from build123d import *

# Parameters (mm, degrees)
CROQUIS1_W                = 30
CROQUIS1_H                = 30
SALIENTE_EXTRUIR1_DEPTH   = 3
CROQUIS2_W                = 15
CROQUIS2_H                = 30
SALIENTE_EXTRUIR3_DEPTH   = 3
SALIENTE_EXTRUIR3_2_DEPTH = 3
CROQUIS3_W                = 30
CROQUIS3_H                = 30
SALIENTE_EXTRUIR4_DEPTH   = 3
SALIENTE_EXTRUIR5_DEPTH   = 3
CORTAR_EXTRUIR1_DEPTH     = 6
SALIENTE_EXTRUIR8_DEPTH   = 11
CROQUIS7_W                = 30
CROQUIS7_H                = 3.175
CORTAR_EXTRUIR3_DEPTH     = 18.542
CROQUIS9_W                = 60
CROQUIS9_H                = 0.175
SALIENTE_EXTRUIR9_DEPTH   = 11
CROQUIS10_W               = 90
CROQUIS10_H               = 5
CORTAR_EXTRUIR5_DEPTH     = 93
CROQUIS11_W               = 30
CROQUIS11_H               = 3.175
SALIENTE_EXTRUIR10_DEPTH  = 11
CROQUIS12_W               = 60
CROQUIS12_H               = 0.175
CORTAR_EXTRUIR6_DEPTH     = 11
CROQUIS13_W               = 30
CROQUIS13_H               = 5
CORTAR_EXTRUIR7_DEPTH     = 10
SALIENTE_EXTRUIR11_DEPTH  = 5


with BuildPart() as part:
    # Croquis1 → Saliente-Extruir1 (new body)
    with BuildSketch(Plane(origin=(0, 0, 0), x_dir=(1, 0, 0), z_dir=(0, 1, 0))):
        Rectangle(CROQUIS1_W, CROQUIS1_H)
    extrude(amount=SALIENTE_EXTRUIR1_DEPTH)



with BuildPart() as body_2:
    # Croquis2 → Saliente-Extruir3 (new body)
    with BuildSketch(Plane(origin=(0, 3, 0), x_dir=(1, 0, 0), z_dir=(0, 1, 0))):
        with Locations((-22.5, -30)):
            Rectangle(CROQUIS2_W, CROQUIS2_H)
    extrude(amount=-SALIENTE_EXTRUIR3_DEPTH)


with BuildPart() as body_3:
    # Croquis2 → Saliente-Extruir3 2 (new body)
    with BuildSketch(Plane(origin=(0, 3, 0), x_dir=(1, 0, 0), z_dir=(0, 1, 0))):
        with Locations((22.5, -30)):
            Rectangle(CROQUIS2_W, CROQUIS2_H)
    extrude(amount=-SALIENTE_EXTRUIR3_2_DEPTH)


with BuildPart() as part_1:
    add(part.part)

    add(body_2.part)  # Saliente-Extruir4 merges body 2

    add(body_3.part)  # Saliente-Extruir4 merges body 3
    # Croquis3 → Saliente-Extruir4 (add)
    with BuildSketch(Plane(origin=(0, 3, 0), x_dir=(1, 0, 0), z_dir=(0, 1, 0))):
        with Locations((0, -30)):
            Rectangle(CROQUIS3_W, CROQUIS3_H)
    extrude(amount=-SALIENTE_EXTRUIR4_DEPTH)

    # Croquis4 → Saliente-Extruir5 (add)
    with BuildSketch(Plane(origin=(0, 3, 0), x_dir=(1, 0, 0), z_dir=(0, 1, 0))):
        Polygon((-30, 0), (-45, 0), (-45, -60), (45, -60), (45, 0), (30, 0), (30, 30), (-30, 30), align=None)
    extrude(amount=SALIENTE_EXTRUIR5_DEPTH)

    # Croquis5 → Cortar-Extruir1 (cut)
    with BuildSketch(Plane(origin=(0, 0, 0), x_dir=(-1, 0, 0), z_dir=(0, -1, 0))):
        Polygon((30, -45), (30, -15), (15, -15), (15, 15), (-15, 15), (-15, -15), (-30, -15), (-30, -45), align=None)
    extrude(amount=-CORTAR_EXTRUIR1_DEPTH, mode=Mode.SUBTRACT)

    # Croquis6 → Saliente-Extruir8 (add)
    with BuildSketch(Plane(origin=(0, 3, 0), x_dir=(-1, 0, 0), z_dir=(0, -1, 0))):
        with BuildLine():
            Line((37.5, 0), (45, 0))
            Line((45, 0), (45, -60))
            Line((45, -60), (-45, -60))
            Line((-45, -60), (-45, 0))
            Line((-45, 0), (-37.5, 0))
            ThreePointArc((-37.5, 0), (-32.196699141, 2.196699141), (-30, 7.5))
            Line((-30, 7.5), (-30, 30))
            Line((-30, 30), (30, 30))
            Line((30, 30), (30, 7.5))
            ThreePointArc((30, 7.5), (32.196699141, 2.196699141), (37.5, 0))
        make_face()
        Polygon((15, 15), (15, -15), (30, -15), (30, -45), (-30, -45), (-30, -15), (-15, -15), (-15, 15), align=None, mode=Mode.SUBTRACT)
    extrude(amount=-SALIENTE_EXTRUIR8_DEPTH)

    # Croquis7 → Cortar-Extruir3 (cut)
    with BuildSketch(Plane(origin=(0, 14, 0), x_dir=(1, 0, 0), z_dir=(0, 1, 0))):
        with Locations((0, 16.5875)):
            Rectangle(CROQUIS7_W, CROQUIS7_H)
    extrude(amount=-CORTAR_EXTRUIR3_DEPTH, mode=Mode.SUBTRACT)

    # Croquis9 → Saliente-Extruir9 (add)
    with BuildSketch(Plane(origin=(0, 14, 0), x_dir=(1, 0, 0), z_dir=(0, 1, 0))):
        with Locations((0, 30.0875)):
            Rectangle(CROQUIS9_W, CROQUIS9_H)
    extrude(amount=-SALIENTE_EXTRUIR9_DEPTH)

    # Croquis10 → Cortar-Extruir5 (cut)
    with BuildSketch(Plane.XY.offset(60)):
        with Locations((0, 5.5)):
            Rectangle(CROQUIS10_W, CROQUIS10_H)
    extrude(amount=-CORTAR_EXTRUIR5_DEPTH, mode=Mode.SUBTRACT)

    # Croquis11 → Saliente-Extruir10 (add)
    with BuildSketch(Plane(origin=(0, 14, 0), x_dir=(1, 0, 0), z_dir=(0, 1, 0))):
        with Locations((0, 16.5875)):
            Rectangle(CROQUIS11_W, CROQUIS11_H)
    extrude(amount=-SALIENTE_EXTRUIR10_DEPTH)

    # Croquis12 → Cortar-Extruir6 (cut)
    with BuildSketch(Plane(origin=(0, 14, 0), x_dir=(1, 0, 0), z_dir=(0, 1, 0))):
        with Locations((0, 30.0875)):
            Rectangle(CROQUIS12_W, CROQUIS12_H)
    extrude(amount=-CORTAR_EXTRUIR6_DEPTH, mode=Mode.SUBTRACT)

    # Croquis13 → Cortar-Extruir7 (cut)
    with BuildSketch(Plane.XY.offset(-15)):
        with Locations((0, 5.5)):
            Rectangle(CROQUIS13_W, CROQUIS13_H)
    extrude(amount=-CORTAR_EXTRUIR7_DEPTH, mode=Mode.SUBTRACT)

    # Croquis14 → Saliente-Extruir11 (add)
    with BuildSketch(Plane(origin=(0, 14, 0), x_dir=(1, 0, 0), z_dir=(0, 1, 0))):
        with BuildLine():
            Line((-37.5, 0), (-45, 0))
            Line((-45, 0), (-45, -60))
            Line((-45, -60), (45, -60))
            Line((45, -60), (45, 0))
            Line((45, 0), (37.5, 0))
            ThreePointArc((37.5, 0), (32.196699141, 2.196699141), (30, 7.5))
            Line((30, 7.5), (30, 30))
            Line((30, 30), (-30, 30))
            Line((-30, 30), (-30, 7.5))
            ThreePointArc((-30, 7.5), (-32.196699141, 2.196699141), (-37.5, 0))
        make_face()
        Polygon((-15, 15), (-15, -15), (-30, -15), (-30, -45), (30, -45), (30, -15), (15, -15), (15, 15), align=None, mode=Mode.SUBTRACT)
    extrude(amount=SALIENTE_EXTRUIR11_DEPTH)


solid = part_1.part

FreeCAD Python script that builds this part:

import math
import FreeCAD as App
import Part
import Sketcher
from FreeCAD import Vector
Q = App.Units.Quantity


def add_polygon(sketch, points):
    """Adds a closed chain of lines whose ends are joined by coincident constraints."""
    first, n = sketch.GeometryCount, len(points)
    for a, b in zip(points, points[1:] + points[:1]):
        sketch.addGeometry(Part.LineSegment(App.Vector(*a, 0), App.Vector(*b, 0)), False)
    for i in range(n):
        sketch.addConstraint(Sketcher.Constraint("Coincident", first + i, 2, first + (i + 1) % n, 1))

doc = App.newDocument("Part")
params = doc.addObject("Spreadsheet::Sheet", "Params")
for row, (alias, value) in enumerate([
    ("sketch1_width", "30 mm"),
    ("pad1_length", "3 mm"),
    ("sketch2_width", "15 mm"),
    ("sketch2_height", "30 mm"),
    ("pad2_length", "3 mm"),
    ("sketch3_width", "15 mm"),
    ("sketch3_height", "30 mm"),
    ("pad3_length", "3 mm"),
    ("sketch4_width", "30 mm"),
    ("pad4_length", "3 mm"),
    ("sketch5_width", "15 mm"),
    ("sketch5_width2", "90 mm"),
    ("sketch5_height", "30 mm"),
    ("pad5_length", "3 mm"),
    ("sketch6_width", "15 mm"),
    ("sketch6_width2", "30 mm"),
    ("pocket1_length", "6 mm"),
    ("sketch7_radius", "7.5 mm"),
    ("sketch7_width", "60 mm"),
    ("sketch7_width2", "90 mm"),
    ("sketch7_width3", "15 mm"),
    ("sketch7_height", "22.5 mm"),
    ("pad6_length", "11 mm"),
    ("sketch8_width", "30 mm"),
    ("pocket2_length", "18.542 mm"),
    ("sketch9_width", "60 mm"),
    ("pad7_length", "11 mm"),
    ("sketch10_width", "90 mm"),
    ("sketch10_height", "5 mm"),
    ("pocket3_length", "93 mm"),
    ("sketch11_width", "30 mm"),
    ("pad8_length", "11 mm"),
    ("sketch12_width", "60 mm"),
    ("pocket4_length", "11 mm"),
    ("sketch13_width", "30 mm"),
    ("sketch13_height", "5 mm"),
    ("pocket5_length", "10 mm"),
    ("sketch14_radius", "7.5 mm"),
    ("sketch14_width", "90 mm"),
    ("sketch14_width2", "60 mm"),
    ("sketch14_width3", "30 mm"),
    ("sketch14_height", "22.5 mm"),
    ("pad9_length", "5 mm"),
], start=1):
    params.set(f"A{row}", alias)
    params.set(f"B{row}", "=" + value)
    params.setAlias(f"B{row}", alias)

body = doc.addObject("PartDesign::Body", "Body")

sketch1 = doc.addObject("Sketcher::SketchObject", "Sketch")
body.addObject(sketch1)
sketch1.AttachmentSupport = (doc.XZ_Plane, [""])
sketch1.MapMode = "FlatFace"
add_polygon(sketch1, [(-15, -15), (-15, 15), (15, 15), (15, -15)])
sketch1.addConstraint(Sketcher.Constraint("Vertical", 0))
sketch1.addConstraint(Sketcher.Constraint("Horizontal", 1))
sketch1.addConstraint(Sketcher.Constraint("Vertical", 2))
sketch1.addConstraint(Sketcher.Constraint("Horizontal", 3))
sketch1.addConstraint(Sketcher.Constraint("Symmetric", 0, 2, 2, 2, -1, 1))
sketch1.addConstraint(Sketcher.Constraint("Equal", 3, 0))
sketch1.addConstraint(Sketcher.Constraint("DistanceX", 1, 1, 1, 2, Q("30 mm")))
sketch1.setExpression("Constraints[10]", "Params.sketch1_width")
pad1 = doc.addObject("PartDesign::Pad", "Pad")
body.addObject(pad1)
pad1.Profile = sketch1
pad1.setExpression("Length", "Params.pad1_length")
pad1.Reversed = True
body2 = doc.addObject("PartDesign::Body", "Body001")

sketch2 = doc.addObject("Sketcher::SketchObject", "Sketch001")
body2.addObject(sketch2)
sketch2.AttachmentSupport = (doc.getObject("XZ_Plane001"), [""])
sketch2.MapMode = "FlatFace"
sketch2.AttachmentOffset = App.Placement(Vector(0, 0, -3), App.Rotation())
add_polygon(sketch2, [(-30, 15), (-30, 45), (-15, 45), (-15, 15)])
sketch2.addConstraint(Sketcher.Constraint("Vertical", 0))
sketch2.addConstraint(Sketcher.Constraint("Horizontal", 1))
sketch2.addConstraint(Sketcher.Constraint("Vertical", 2))
sketch2.addConstraint(Sketcher.Constraint("Horizontal", 3))
sketch2.addConstraint(Sketcher.Constraint("DistanceX", 1, 1, 1, 2, Q("15 mm")))
sketch2.addConstraint(Sketcher.Constraint("DistanceY", 0, 1, 0, 2, Q("30 mm")))
sketch2.addConstraint(Sketcher.Constraint("DistanceX", 0, 2, -1, 1, Q("30 mm")))
sketch2.addConstraint(Sketcher.Constraint("DistanceY", -1, 1, 0, 2, Q("45 mm")))
sketch2.setExpression("Constraints[8]", "Params.sketch2_width")
sketch2.setExpression("Constraints[9]", "Params.sketch2_height")
pad2 = doc.addObject("PartDesign::Pad", "Pad001")
body2.addObject(pad2)
pad2.Profile = sketch2
pad2.setExpression("Length", "Params.pad2_length")
body3 = doc.addObject("PartDesign::Body", "Body002")

sketch3 = doc.addObject("Sketcher::SketchObject", "Sketch002")
body3.addObject(sketch3)
sketch3.AttachmentSupport = (doc.getObject("XZ_Plane002"), [""])
sketch3.MapMode = "FlatFace"
sketch3.AttachmentOffset = App.Placement(Vector(0, 0, -3), App.Rotation())
add_polygon(sketch3, [(15, 15), (15, 45), (30, 45), (30, 15)])
sketch3.addConstraint(Sketcher.Constraint("Vertical", 0))
sketch3.addConstraint(Sketcher.Constraint("Horizontal", 1))
sketch3.addConstraint(Sketcher.Constraint("Vertical", 2))
sketch3.addConstraint(Sketcher.Constraint("Horizontal", 3))
sketch3.addConstraint(Sketcher.Constraint("DistanceX", 1, 1, 1, 2, Q("15 mm")))
sketch3.addConstraint(Sketcher.Constraint("DistanceY", 0, 1, 0, 2, Q("30 mm")))
sketch3.addConstraint(Sketcher.Constraint("DistanceX", -1, 1, 0, 2, Q("15 mm")))
sketch3.addConstraint(Sketcher.Constraint("DistanceY", -1, 1, 0, 2, Q("45 mm")))
sketch3.setExpression("Constraints[8]", "Params.sketch3_width")
sketch3.setExpression("Constraints[9]", "Params.sketch3_height")
pad3 = doc.addObject("PartDesign::Pad", "Pad002")
body3.addObject(pad3)
pad3.Profile = sketch3
pad3.setExpression("Length", "Params.pad3_length")
body.AllowCompound = True
doc.recompute()

boolean = doc.addObject("PartDesign::Boolean", "Boolean")
body.addObject(boolean)
boolean.Type = "Fuse"
boolean.addObjects([body2])
doc.recompute()

boolean2 = doc.addObject("PartDesign::Boolean", "Boolean001")
body.addObject(boolean2)
boolean2.Type = "Fuse"
boolean2.addObjects([body3])

sketch4 = doc.addObject("Sketcher::SketchObject", "Sketch003")
body.addObject(sketch4)
sketch4.AttachmentSupport = (doc.XZ_Plane, [""])
sketch4.MapMode = "FlatFace"
sketch4.AttachmentOffset = App.Placement(Vector(0, 0, -3), App.Rotation())
add_polygon(sketch4, [(-15, 15), (-15, 45), (15, 45), (15, 15)])
sketch4.addConstraint(Sketcher.Constraint("Vertical", 0))
sketch4.addConstraint(Sketcher.Constraint("Horizontal", 1))
sketch4.addConstraint(Sketcher.Constraint("Vertical", 2))
sketch4.addConstraint(Sketcher.Constraint("Horizontal", 3))
sketch4.addConstraint(Sketcher.Constraint("Equal", 3, 0))
sketch4.addConstraint(Sketcher.Constraint("DistanceX", 1, 1, 1, 2, Q("30 mm")))
sketch4.addConstraint(Sketcher.Constraint("DistanceX", 0, 2, -1, 1, Q("15 mm")))
sketch4.addConstraint(Sketcher.Constraint("DistanceY", -1, 1, 0, 2, Q("45 mm")))
sketch4.setExpression("Constraints[9]", "Params.sketch4_width")
pad4 = doc.addObject("PartDesign::Pad", "Pad003")
body.addObject(pad4)
pad4.Profile = sketch4
pad4.setExpression("Length", "Params.pad4_length")

sketch5 = doc.addObject("Sketcher::SketchObject", "Sketch004")
body.addObject(sketch5)
sketch5.AttachmentSupport = (doc.XZ_Plane, [""])
sketch5.MapMode = "FlatFace"
sketch5.AttachmentOffset = App.Placement(Vector(0, 0, -3), App.Rotation())
add_polygon(sketch5, [(-30, 0), (-45, 0), (-45, 60), (45, 60), (45, 0), (30, 0), (30, -30), (-30, -30)])
sketch5.addConstraint(Sketcher.Constraint("Horizontal", 0))
sketch5.addConstraint(Sketcher.Constraint("Vertical", 1))
sketch5.addConstraint(Sketcher.Constraint("Horizontal", 2))
sketch5.addConstraint(Sketcher.Constraint("Vertical", 3))
sketch5.addConstraint(Sketcher.Constraint("Horizontal", 4))
sketch5.addConstraint(Sketcher.Constraint("Vertical", 5))
sketch5.addConstraint(Sketcher.Constraint("Horizontal", 6))
sketch5.addConstraint(Sketcher.Constraint("Vertical", 7))
sketch5.addConstraint(Sketcher.Constraint("Symmetric", 0, 2, 3, 2, -1, 1))
sketch5.addConstraint(Sketcher.Constraint("Symmetric", 4, 2, 7, 2, -2))
sketch5.addConstraint(Sketcher.Constraint("Equal", 6, 1))
sketch5.addConstraint(Sketcher.Constraint("DistanceX", 0, 2, 0, 1, Q("15 mm")))
sketch5.addConstraint(Sketcher.Constraint("DistanceX", 2, 1, 2, 2, Q("90 mm")))
sketch5.addConstraint(Sketcher.Constraint("DistanceY", 5, 2, 5, 1, Q("30 mm")))
sketch5.setExpression("Constraints[19]", "Params.sketch5_width")
sketch5.setExpression("Constraints[20]", "Params.sketch5_width2")
sketch5.setExpression("Constraints[21]", "Params.sketch5_height")
pad5 = doc.addObject("PartDesign::Pad", "Pad004")
body.addObject(pad5)
pad5.Profile = sketch5
pad5.setExpression("Length", "Params.pad5_length")
pad5.Reversed = True

sketch6 = doc.addObject("Sketcher::SketchObject", "Sketch005")
body.addObject(sketch6)
sketch6.AttachmentSupport = (doc.XZ_Plane, [""])
sketch6.MapMode = "FlatFace"
add_polygon(sketch6, [(-30, 45), (-30, 15), (-15, 15), (-15, -15), (15, -15), (15, 15), (30, 15), (30, 45)])
sketch6.addConstraint(Sketcher.Constraint("Vertical", 0))
sketch6.addConstraint(Sketcher.Constraint("Horizontal", 1))
sketch6.addConstraint(Sketcher.Constraint("Vertical", 2))
sketch6.addConstraint(Sketcher.Constraint("Horizontal", 3))
sketch6.addConstraint(Sketcher.Constraint("Vertical", 4))
sketch6.addConstraint(Sketcher.Constraint("Horizontal", 5))
sketch6.addConstraint(Sketcher.Constraint("Vertical", 6))
sketch6.addConstraint(Sketcher.Constraint("Horizontal", 7))
sketch6.addConstraint(Sketcher.Constraint("Symmetric", 1, 2, 3, 2, -1, 1))
sketch6.addConstraint(Sketcher.Constraint("Symmetric", 0, 2, 5, 2, -2))
sketch6.addConstraint(Sketcher.Constraint("Equal", 3, 0))
sketch6.addConstraint(Sketcher.Constraint("Equal", 0, 2))
sketch6.addConstraint(Sketcher.Constraint("DistanceX", 1, 1, 1, 2, Q("15 mm")))
sketch6.addConstraint(Sketcher.Constraint("DistanceX", 3, 1, 3, 2, Q("30 mm")))
sketch6.setExpression("Constraints[20]", "Params.sketch6_width")
sketch6.setExpression("Constraints[21]", "Params.sketch6_width2")
pocket1 = doc.addObject("PartDesign::Pocket", "Pocket")
body.addObject(pocket1)
pocket1.Profile = sketch6
pocket1.setExpression("Length", "Params.pocket1_length")

sketch7 = doc.addObject("Sketcher::SketchObject", "Sketch006")
body.addObject(sketch7)
sketch7.AttachmentSupport = (doc.XZ_Plane, [""])
sketch7.MapMode = "FlatFace"
sketch7.AttachmentOffset = App.Placement(Vector(0, 0, -3), App.Rotation())
sketch7.addGeometry(Part.LineSegment(Vector(-45, 0, 0), Vector(-38, 0, 0)), False)
sketch7.addGeometry(Part.ArcOfCircle(Part.Circle(Vector(-38, -8, 0), Vector(0, 0, 1), 8), math.radians(0), math.radians(90)), False)
sketch7.addGeometry(Part.LineSegment(Vector(-30, -8, 0), Vector(-30, -30, 0)), False)
sketch7.addGeometry(Part.LineSegment(Vector(-30, -30, 0), Vector(30, -30, 0)), False)
sketch7.addGeometry(Part.LineSegment(Vector(30, -30, 0), Vector(30, -8, 0)), False)
sketch7.addGeometry(Part.ArcOfCircle(Part.Circle(Vector(38, -8, 0), Vector(0, 0, 1), 8), math.radians(90), math.radians(180)), False)
sketch7.addGeometry(Part.LineSegment(Vector(38, 0, 0), Vector(45, 0, 0)), False)
sketch7.addGeometry(Part.LineSegment(Vector(45, 0, 0), Vector(45, 60, 0)), False)
sketch7.addGeometry(Part.LineSegment(Vector(45, 60, 0), Vector(-45, 60, 0)), False)
sketch7.addGeometry(Part.LineSegment(Vector(-45, 60, 0), Vector(-45, 0, 0)), False)
add_polygon(sketch7, [(-15, -15), (-15, 15), (-30, 15), (-30, 45), (30, 45), (30, 15), (15, 15), (15, -15)])
sketch7.addConstraint(Sketcher.Constraint("Tangent", 0, 2, 1, 2))
sketch7.addConstraint(Sketcher.Constraint("Tangent", 1, 1, 2, 1))
sketch7.addConstraint(Sketcher.Constraint("Coincident", 2, 2, 3, 1))
sketch7.addConstraint(Sketcher.Constraint("Coincident", 3, 2, 4, 1))
sketch7.addConstraint(Sketcher.Constraint("Tangent", 4, 2, 5, 2))
sketch7.addConstraint(Sketcher.Constraint("Tangent", 5, 1, 6, 1))
sketch7.addConstraint(Sketcher.Constraint("Coincident", 6, 2, 7, 1))
sketch7.addConstraint(Sketcher.Constraint("Coincident", 7, 2, 8, 1))
sketch7.addConstraint(Sketcher.Constraint("Coincident", 8, 2, 9, 1))
sketch7.addConstraint(Sketcher.Constraint("Coincident", 9, 2, 0, 1))
sketch7.addConstraint(Sketcher.Constraint("Horizontal", 0))
sketch7.addConstraint(Sketcher.Constraint("Vertical", 2))
sketch7.addConstraint(Sketcher.Constraint("Horizontal", 3))
sketch7.addConstraint(Sketcher.Constraint("Vertical", 4))
sketch7.addConstraint(Sketcher.Constraint("Horizontal", 6))
sketch7.addConstraint(Sketcher.Constraint("Vertical", 7))
sketch7.addConstraint(Sketcher.Constraint("Horizontal", 8))
sketch7.addConstraint(Sketcher.Constraint("Vertical", 9))
sketch7.addConstraint(Sketcher.Constraint("Vertical", 10))
sketch7.addConstraint(Sketcher.Constraint("Horizontal", 11))
sketch7.addConstraint(Sketcher.Constraint("Vertical", 12))
sketch7.addConstraint(Sketcher.Constraint("Horizontal", 13))
sketch7.addConstraint(Sketcher.Constraint("Vertical", 14))
sketch7.addConstraint(Sketcher.Constraint("Horizontal", 15))
sketch7.addConstraint(Sketcher.Constraint("Vertical", 16))
sketch7.addConstraint(Sketcher.Constraint("Horizontal", 17))
sketch7.addConstraint(Sketcher.Constraint("Equal", 1, 5))
sketch7.addConstraint(Sketcher.Constraint("Symmetric", 0, 2, 5, 1, -1, 1))
sketch7.addConstraint(Sketcher.Constraint("Symmetric", 10, 2, 16, 2, -1, 1))
sketch7.addConstraint(Sketcher.Constraint("Symmetric", 6, 2, 9, 2, -2))
sketch7.addConstraint(Sketcher.Constraint("Symmetric", 11, 2, 14, 2, -2))
sketch7.addConstraint(Sketcher.Constraint("Vertical", 2, 2, 11, 2))
sketch7.addConstraint(Sketcher.Constraint("Equal", 13, 7))
sketch7.addConstraint(Sketcher.Constraint("Equal", 17, 10))
sketch7.addConstraint(Sketcher.Constraint("Equal", 10, 12))
sketch7.addConstraint(Sketcher.Constraint("Radius", 1, Q("7.5 mm")))
sketch7.addConstraint(Sketcher.Constraint("DistanceX", 3, 1, 3, 2, Q("60 mm")))
sketch7.addConstraint(Sketcher.Constraint("DistanceX", 8, 2, 8, 1, Q("90 mm")))
sketch7.addConstraint(Sketcher.Constraint("DistanceX", 11, 2, 11, 1, Q("15 mm")))
sketch7.addConstraint(Sketcher.Constraint("DistanceY", 2, 2, 2, 1, Q("22.5 mm")))
sketch7.setExpression("Constraints[43]", "Params.sketch7_radius")
sketch7.setExpression("Constraints[44]", "Params.sketch7_width")
sketch7.setExpression("Constraints[45]", "Params.sketch7_width2")
sketch7.setExpression("Constraints[46]", "Params.sketch7_width3")
sketch7.setExpression("Constraints[47]", "Params.sketch7_height")
pad6 = doc.addObject("PartDesign::Pad", "Pad005")
body.addObject(pad6)
pad6.Profile = sketch7
pad6.setExpression("Length", "Params.pad6_length")
pad6.Reversed = True

sketch8 = doc.addObject("Sketcher::SketchObject", "Sketch007")
body.addObject(sketch8)
sketch8.AttachmentSupport = (doc.XZ_Plane, [""])
sketch8.MapMode = "FlatFace"
sketch8.AttachmentOffset = App.Placement(Vector(0, 0, -14), App.Rotation())
add_polygon(sketch8, [(-15, -18.2), (-15, -15), (15, -15), (15, -18.2)])
sketch8.addConstraint(Sketcher.Constraint("Vertical", 0))
sketch8.addConstraint(Sketcher.Constraint("Horizontal", 1))
sketch8.addConstraint(Sketcher.Constraint("Vertical", 2))
sketch8.addConstraint(Sketcher.Constraint("Horizontal", 3))
sketch8.addConstraint(Sketcher.Constraint("DistanceX", 1, 1, 1, 2, Q("30 mm")))
sketch8.addConstraint(Sketcher.Constraint("DistanceX", 0, 2, -1, 1, Q("15 mm")))
sketch8.addConstraint(Sketcher.Constraint("DistanceY", 0, 2, -1, 1, Q("15 mm")))
sketch8.addConstraint(Sketcher.Constraint("DistanceY", 0, 1, 0, 2, Q("3.175 mm")))
sketch8.setExpression("Constraints[8]", "Params.sketch8_width")
pocket2 = doc.addObject("PartDesign::Pocket", "Pocket001")
body.addObject(pocket2)
pocket2.Profile = sketch8
pocket2.setExpression("Length", "Params.pocket2_length")
pocket2.Reversed = True

sketch9 = doc.addObject("Sketcher::SketchObject", "Sketch008")
body.addObject(sketch9)
sketch9.AttachmentSupport = (doc.XZ_Plane, [""])
sketch9.MapMode = "FlatFace"
sketch9.AttachmentOffset = App.Placement(Vector(0, 0, -14), App.Rotation())
add_polygon(sketch9, [(-30, -30.18), (-30, -30), (30, -30), (30, -30.18)])
sketch9.addConstraint(Sketcher.Constraint("Vertical", 0))
sketch9.addConstraint(Sketcher.Constraint("Horizontal", 1))
sketch9.addConstraint(Sketcher.Constraint("Vertical", 2))
sketch9.addConstraint(Sketcher.Constraint("Horizontal", 3))
sketch9.addConstraint(Sketcher.Constraint("DistanceX", 1, 1, 1, 2, Q("60 mm")))
sketch9.addConstraint(Sketcher.Constraint("DistanceX", 0, 2, -1, 1, Q("30 mm")))
sketch9.addConstraint(Sketcher.Constraint("DistanceY", 0, 2, -1, 1, Q("30 mm")))
sketch9.addConstraint(Sketcher.Constraint("DistanceY", 0, 1, 0, 2, Q("0.175 mm")))
sketch9.setExpression("Constraints[8]", "Params.sketch9_width")
pad7 = doc.addObject("PartDesign::Pad", "Pad006")
body.addObject(pad7)
pad7.Profile = sketch9
pad7.setExpression("Length", "Params.pad7_length")

sketch10 = doc.addObject("Sketcher::SketchObject", "Sketch009")
body.addObject(sketch10)
sketch10.AttachmentSupport = (doc.XY_Plane, [""])
sketch10.MapMode = "FlatFace"
sketch10.AttachmentOffset = App.Placement(Vector(0, 0, 60), App.Rotation())
add_polygon(sketch10, [(-45, 8), (-45, 3), (45, 3), (45, 8)])
sketch10.addConstraint(Sketcher.Constraint("Vertical", 0))
sketch10.addConstraint(Sketcher.Constraint("Horizontal", 1))
sketch10.addConstraint(Sketcher.Constraint("Vertical", 2))
sketch10.addConstraint(Sketcher.Constraint("Horizontal", 3))
sketch10.addConstraint(Sketcher.Constraint("DistanceX", 1, 1, 1, 2, Q("90 mm")))
sketch10.addConstraint(Sketcher.Constraint("DistanceY", 0, 2, 0, 1, Q("5 mm")))
sketch10.addConstraint(Sketcher.Constraint("DistanceX", 0, 2, -1, 1, Q("45 mm")))
sketch10.addConstraint(Sketcher.Constraint("DistanceY", -1, 1, 0, 2, Q("3 mm")))
sketch10.setExpression("Constraints[8]", "Params.sketch10_width")
sketch10.setExpression("Constraints[9]", "Params.sketch10_height")
pocket3 = doc.addObject("PartDesign::Pocket", "Pocket002")
body.addObject(pocket3)
pocket3.Profile = sketch10
pocket3.setExpression("Length", "Params.pocket3_length")

sketch11 = doc.addObject("Sketcher::SketchObject", "Sketch010")
body.addObject(sketch11)
sketch11.AttachmentSupport = (doc.XZ_Plane, [""])
sketch11.MapMode = "FlatFace"
sketch11.AttachmentOffset = App.Placement(Vector(0, 0, -14), App.Rotation())
add_polygon(sketch11, [(-15, -18.2), (-15, -15), (15, -15), (15, -18.2)])
sketch11.addConstraint(Sketcher.Constraint("Vertical", 0))
sketch11.addConstraint(Sketcher.Constraint("Horizontal", 1))
sketch11.addConstraint(Sketcher.Constraint("Vertical", 2))
sketch11.addConstraint(Sketcher.Constraint("Horizontal", 3))
sketch11.addConstraint(Sketcher.Constraint("DistanceX", 1, 1, 1, 2, Q("30 mm")))
sketch11.addConstraint(Sketcher.Constraint("DistanceX", 0, 2, -1, 1, Q("15 mm")))
sketch11.addConstraint(Sketcher.Constraint("DistanceY", 0, 2, -1, 1, Q("15 mm")))
sketch11.addConstraint(Sketcher.Constraint("DistanceY", 0, 1, 0, 2, Q("3.175 mm")))
sketch11.setExpression("Constraints[8]", "Params.sketch11_width")
pad8 = doc.addObject("PartDesign::Pad", "Pad007")
body.addObject(pad8)
pad8.Profile = sketch11
pad8.setExpression("Length", "Params.pad8_length")

sketch12 = doc.addObject("Sketcher::SketchObject", "Sketch011")
body.addObject(sketch12)
sketch12.AttachmentSupport = (doc.XZ_Plane, [""])
sketch12.MapMode = "FlatFace"
sketch12.AttachmentOffset = App.Placement(Vector(0, 0, -14), App.Rotation())
add_polygon(sketch12, [(-30, -30.18), (-30, -30), (30, -30), (30, -30.18)])
sketch12.addConstraint(Sketcher.Constraint("Vertical", 0))
sketch12.addConstraint(Sketcher.Constraint("Horizontal", 1))
sketch12.addConstraint(Sketcher.Constraint("Vertical", 2))
sketch12.addConstraint(Sketcher.Constraint("Horizontal", 3))
sketch12.addConstraint(Sketcher.Constraint("DistanceX", 1, 1, 1, 2, Q("60 mm")))
sketch12.addConstraint(Sketcher.Constraint("DistanceX", 0, 2, -1, 1, Q("30 mm")))
sketch12.addConstraint(Sketcher.Constraint("DistanceY", 0, 2, -1, 1, Q("30 mm")))
sketch12.addConstraint(Sketcher.Constraint("DistanceY", 0, 1, 0, 2, Q("0.175 mm")))
sketch12.setExpression("Constraints[8]", "Params.sketch12_width")
pocket4 = doc.addObject("PartDesign::Pocket", "Pocket003")
body.addObject(pocket4)
pocket4.Profile = sketch12
pocket4.setExpression("Length", "Params.pocket4_length")
pocket4.Reversed = True

sketch13 = doc.addObject("Sketcher::SketchObject", "Sketch012")
body.addObject(sketch13)
sketch13.AttachmentSupport = (doc.XY_Plane, [""])
sketch13.MapMode = "FlatFace"
sketch13.AttachmentOffset = App.Placement(Vector(0, 0, -15), App.Rotation())
add_polygon(sketch13, [(-15, 8), (-15, 3), (15, 3), (15, 8)])
sketch13.addConstraint(Sketcher.Constraint("Vertical", 0))
sketch13.addConstraint(Sketcher.Constraint("Horizontal", 1))
sketch13.addConstraint(Sketcher.Constraint("Vertical", 2))
sketch13.addConstraint(Sketcher.Constraint("Horizontal", 3))
sketch13.addConstraint(Sketcher.Constraint("DistanceX", 1, 1, 1, 2, Q("30 mm")))
sketch13.addConstraint(Sketcher.Constraint("DistanceY", 0, 2, 0, 1, Q("5 mm")))
sketch13.addConstraint(Sketcher.Constraint("DistanceX", 0, 2, -1, 1, Q("15 mm")))
sketch13.addConstraint(Sketcher.Constraint("DistanceY", -1, 1, 0, 2, Q("3 mm")))
sketch13.setExpression("Constraints[8]", "Params.sketch13_width")
sketch13.setExpression("Constraints[9]", "Params.sketch13_height")
pocket5 = doc.addObject("PartDesign::Pocket", "Pocket004")
body.addObject(pocket5)
pocket5.Profile = sketch13
pocket5.setExpression("Length", "Params.pocket5_length")

sketch14 = doc.addObject("Sketcher::SketchObject", "Sketch013")
body.addObject(sketch14)
sketch14.AttachmentSupport = (doc.XZ_Plane, [""])
sketch14.MapMode = "FlatFace"
sketch14.AttachmentOffset = App.Placement(Vector(0, 0, -14), App.Rotation())
sketch14.addGeometry(Part.LineSegment(Vector(-38, 0, 0), Vector(-45, 0, 0)), False)
sketch14.addGeometry(Part.LineSegment(Vector(-45, 0, 0), Vector(-45, 60, 0)), False)
sketch14.addGeometry(Part.LineSegment(Vector(-45, 60, 0), Vector(45, 60, 0)), False)
sketch14.addGeometry(Part.LineSegment(Vector(45, 60, 0), Vector(45, 0, 0)), False)
sketch14.addGeometry(Part.LineSegment(Vector(45, 0, 0), Vector(38, 0, 0)), False)
sketch14.addGeometry(Part.ArcOfCircle(Part.Circle(Vector(38, -8, 0), Vector(0, 0, 1), 8), math.radians(90), math.radians(180)), False)
sketch14.addGeometry(Part.LineSegment(Vector(30, -8, 0), Vector(30, -30, 0)), False)
sketch14.addGeometry(Part.LineSegment(Vector(30, -30, 0), Vector(-30, -30, 0)), False)
sketch14.addGeometry(Part.LineSegment(Vector(-30, -30, 0), Vector(-30, -8, 0)), False)
sketch14.addGeometry(Part.ArcOfCircle(Part.Circle(Vector(-38, -8, 0), Vector(0, 0, 1), 8), math.radians(0), math.radians(90)), False)
add_polygon(sketch14, [(-15, 15), (-15, -15), (15, -15), (15, 15), (30, 15), (30, 45), (-30, 45), (-30, 15)])
sketch14.addConstraint(Sketcher.Constraint("Coincident", 0, 2, 1, 1))
sketch14.addConstraint(Sketcher.Constraint("Coincident", 1, 2, 2, 1))
sketch14.addConstraint(Sketcher.Constraint("Coincident", 2, 2, 3, 1))
sketch14.addConstraint(Sketcher.Constraint("Coincident", 3, 2, 4, 1))
sketch14.addConstraint(Sketcher.Constraint("Tangent", 4, 2, 5, 1))
sketch14.addConstraint(Sketcher.Constraint("Tangent", 5, 2, 6, 1))
sketch14.addConstraint(Sketcher.Constraint("Coincident", 6, 2, 7, 1))
sketch14.addConstraint(Sketcher.Constraint("Coincident", 7, 2, 8, 1))
sketch14.addConstraint(Sketcher.Constraint("Tangent", 8, 2, 9, 1))
sketch14.addConstraint(Sketcher.Constraint("Tangent", 9, 2, 0, 1))
sketch14.addConstraint(Sketcher.Constraint("Horizontal", 0))
sketch14.addConstraint(Sketcher.Constraint("Vertical", 1))
sketch14.addConstraint(Sketcher.Constraint("Horizontal", 2))
sketch14.addConstraint(Sketcher.Constraint("Vertical", 3))
sketch14.addConstraint(Sketcher.Constraint("Horizontal", 4))
sketch14.addConstraint(Sketcher.Constraint("Vertical", 6))
sketch14.addConstraint(Sketcher.Constraint("Horizontal", 7))
sketch14.addConstraint(Sketcher.Constraint("Vertical", 8))
sketch14.addConstraint(Sketcher.Constraint("Vertical", 10))
sketch14.addConstraint(Sketcher.Constraint("Horizontal", 11))
sketch14.addConstraint(Sketcher.Constraint("Vertical", 12))
sketch14.addConstraint(Sketcher.Constraint("Horizontal", 13))
sketch14.addConstraint(Sketcher.Constraint("Vertical", 14))
sketch14.addConstraint(Sketcher.Constraint("Horizontal", 15))
sketch14.addConstraint(Sketcher.Constraint("Vertical", 16))
sketch14.addConstraint(Sketcher.Constraint("Horizontal", 17))
sketch14.addConstraint(Sketcher.Constraint("Equal", 5, 9))
sketch14.addConstraint(Sketcher.Constraint("Symmetric", 0, 2, 3, 2, -1, 1))
sketch14.addConstraint(Sketcher.Constraint("Symmetric", 10, 2, 12, 2, -1, 1))
sketch14.addConstraint(Sketcher.Constraint("Symmetric", 5, 3, 9, 3, -2))
sketch14.addConstraint(Sketcher.Constraint("Symmetric", 13, 2, 16, 2, -2))
sketch14.addConstraint(Sketcher.Constraint("Vertical", 6, 2, 13, 2))
sketch14.addConstraint(Sketcher.Constraint("Equal", 15, 1))
sketch14.addConstraint(Sketcher.Constraint("Equal", 11, 10))
sketch14.addConstraint(Sketcher.Constraint("Equal", 12, 14))
sketch14.addConstraint(Sketcher.Constraint("Radius", 5, Q("7.5 mm")))
sketch14.addConstraint(Sketcher.Constraint("DistanceX", 2, 1, 2, 2, Q("90 mm")))
sketch14.addConstraint(Sketcher.Constraint("DistanceX", 7, 2, 7, 1, Q("60 mm")))
sketch14.addConstraint(Sketcher.Constraint("DistanceX", 11, 1, 11, 2, Q("30 mm")))
sketch14.addConstraint(Sketcher.Constraint("DistanceY", 6, 2, 6, 1, Q("22.5 mm")))
sketch14.setExpression("Constraints[43]", "Params.sketch14_radius")
sketch14.setExpression("Constraints[44]", "Params.sketch14_width")
sketch14.setExpression("Constraints[45]", "Params.sketch14_width2")
sketch14.setExpression("Constraints[46]", "Params.sketch14_width3")
sketch14.setExpression("Constraints[47]", "Params.sketch14_height")
pad9 = doc.addObject("PartDesign::Pad", "Pad008")
body.addObject(pad9)
pad9.Profile = sketch14
pad9.setExpression("Length", "Params.pad9_length")
pad9.Reversed = True

doc.recompute()
